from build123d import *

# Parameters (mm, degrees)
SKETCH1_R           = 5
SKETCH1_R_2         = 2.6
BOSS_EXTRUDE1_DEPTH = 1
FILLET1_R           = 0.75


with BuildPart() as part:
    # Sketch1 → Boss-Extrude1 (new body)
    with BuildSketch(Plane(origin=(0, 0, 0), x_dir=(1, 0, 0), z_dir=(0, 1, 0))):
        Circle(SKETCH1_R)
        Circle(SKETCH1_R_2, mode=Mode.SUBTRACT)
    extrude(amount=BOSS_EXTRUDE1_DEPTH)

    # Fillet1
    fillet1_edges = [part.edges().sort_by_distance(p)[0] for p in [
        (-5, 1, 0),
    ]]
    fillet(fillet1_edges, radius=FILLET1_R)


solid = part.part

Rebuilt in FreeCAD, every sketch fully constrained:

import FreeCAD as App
import Part
import Sketcher
from FreeCAD import Vector


def edges_at(feature, points):
    """Names of the edges that pass closest to the given points."""
    edges = feature.Shape.Edges
    near = lambda p: min(range(len(edges)), key=lambda i: edges[i].distToShape(Part.Vertex(*p))[0])
    return sorted({f"Edge{near(p) + 1}" for p in points})

doc = App.newDocument("Part")
body = doc.addObject("PartDesign::Body", "Body")

sketch1 = doc.addObject("Sketcher::SketchObject", "Sketch")
body.addObject(sketch1)
sketch1.AttachmentSupport = (doc.XZ_Plane, [""])
sketch1.MapMode = "FlatFace"
sketch1.addGeometry(Part.Circle(Vector(0, 0, 0), Vector(0, 0, 1), 5), False)
sketch1.addGeometry(Part.Circle(Vector(0, 0, 0), Vector(0, 0, 1), 2.6), False)
sketch1.addConstraint(Sketcher.Constraint("Coincident", 0, 3, -1, 1))
sketch1.addConstraint(Sketcher.Constraint("Coincident", 1, 3, -1, 1))
sketch1.addConstraint(Sketcher.Constraint("Diameter", 0, 10.0))
sketch1.addConstraint(Sketcher.Constraint("Diameter", 1, 5.2))
pad1 = doc.addObject("PartDesign::Pad", "Pad")
body.addObject(pad1)
pad1.Profile = sketch1
pad1.Length = 1
pad1.Reversed = True
doc.recompute()

fillet = doc.addObject("PartDesign::Fillet", "Fillet")
body.addObject(fillet)
fillet.Base = (pad1, edges_at(pad1, [(-5, 1, 0)]))
fillet.Radius = 0.75

doc.recompute()
